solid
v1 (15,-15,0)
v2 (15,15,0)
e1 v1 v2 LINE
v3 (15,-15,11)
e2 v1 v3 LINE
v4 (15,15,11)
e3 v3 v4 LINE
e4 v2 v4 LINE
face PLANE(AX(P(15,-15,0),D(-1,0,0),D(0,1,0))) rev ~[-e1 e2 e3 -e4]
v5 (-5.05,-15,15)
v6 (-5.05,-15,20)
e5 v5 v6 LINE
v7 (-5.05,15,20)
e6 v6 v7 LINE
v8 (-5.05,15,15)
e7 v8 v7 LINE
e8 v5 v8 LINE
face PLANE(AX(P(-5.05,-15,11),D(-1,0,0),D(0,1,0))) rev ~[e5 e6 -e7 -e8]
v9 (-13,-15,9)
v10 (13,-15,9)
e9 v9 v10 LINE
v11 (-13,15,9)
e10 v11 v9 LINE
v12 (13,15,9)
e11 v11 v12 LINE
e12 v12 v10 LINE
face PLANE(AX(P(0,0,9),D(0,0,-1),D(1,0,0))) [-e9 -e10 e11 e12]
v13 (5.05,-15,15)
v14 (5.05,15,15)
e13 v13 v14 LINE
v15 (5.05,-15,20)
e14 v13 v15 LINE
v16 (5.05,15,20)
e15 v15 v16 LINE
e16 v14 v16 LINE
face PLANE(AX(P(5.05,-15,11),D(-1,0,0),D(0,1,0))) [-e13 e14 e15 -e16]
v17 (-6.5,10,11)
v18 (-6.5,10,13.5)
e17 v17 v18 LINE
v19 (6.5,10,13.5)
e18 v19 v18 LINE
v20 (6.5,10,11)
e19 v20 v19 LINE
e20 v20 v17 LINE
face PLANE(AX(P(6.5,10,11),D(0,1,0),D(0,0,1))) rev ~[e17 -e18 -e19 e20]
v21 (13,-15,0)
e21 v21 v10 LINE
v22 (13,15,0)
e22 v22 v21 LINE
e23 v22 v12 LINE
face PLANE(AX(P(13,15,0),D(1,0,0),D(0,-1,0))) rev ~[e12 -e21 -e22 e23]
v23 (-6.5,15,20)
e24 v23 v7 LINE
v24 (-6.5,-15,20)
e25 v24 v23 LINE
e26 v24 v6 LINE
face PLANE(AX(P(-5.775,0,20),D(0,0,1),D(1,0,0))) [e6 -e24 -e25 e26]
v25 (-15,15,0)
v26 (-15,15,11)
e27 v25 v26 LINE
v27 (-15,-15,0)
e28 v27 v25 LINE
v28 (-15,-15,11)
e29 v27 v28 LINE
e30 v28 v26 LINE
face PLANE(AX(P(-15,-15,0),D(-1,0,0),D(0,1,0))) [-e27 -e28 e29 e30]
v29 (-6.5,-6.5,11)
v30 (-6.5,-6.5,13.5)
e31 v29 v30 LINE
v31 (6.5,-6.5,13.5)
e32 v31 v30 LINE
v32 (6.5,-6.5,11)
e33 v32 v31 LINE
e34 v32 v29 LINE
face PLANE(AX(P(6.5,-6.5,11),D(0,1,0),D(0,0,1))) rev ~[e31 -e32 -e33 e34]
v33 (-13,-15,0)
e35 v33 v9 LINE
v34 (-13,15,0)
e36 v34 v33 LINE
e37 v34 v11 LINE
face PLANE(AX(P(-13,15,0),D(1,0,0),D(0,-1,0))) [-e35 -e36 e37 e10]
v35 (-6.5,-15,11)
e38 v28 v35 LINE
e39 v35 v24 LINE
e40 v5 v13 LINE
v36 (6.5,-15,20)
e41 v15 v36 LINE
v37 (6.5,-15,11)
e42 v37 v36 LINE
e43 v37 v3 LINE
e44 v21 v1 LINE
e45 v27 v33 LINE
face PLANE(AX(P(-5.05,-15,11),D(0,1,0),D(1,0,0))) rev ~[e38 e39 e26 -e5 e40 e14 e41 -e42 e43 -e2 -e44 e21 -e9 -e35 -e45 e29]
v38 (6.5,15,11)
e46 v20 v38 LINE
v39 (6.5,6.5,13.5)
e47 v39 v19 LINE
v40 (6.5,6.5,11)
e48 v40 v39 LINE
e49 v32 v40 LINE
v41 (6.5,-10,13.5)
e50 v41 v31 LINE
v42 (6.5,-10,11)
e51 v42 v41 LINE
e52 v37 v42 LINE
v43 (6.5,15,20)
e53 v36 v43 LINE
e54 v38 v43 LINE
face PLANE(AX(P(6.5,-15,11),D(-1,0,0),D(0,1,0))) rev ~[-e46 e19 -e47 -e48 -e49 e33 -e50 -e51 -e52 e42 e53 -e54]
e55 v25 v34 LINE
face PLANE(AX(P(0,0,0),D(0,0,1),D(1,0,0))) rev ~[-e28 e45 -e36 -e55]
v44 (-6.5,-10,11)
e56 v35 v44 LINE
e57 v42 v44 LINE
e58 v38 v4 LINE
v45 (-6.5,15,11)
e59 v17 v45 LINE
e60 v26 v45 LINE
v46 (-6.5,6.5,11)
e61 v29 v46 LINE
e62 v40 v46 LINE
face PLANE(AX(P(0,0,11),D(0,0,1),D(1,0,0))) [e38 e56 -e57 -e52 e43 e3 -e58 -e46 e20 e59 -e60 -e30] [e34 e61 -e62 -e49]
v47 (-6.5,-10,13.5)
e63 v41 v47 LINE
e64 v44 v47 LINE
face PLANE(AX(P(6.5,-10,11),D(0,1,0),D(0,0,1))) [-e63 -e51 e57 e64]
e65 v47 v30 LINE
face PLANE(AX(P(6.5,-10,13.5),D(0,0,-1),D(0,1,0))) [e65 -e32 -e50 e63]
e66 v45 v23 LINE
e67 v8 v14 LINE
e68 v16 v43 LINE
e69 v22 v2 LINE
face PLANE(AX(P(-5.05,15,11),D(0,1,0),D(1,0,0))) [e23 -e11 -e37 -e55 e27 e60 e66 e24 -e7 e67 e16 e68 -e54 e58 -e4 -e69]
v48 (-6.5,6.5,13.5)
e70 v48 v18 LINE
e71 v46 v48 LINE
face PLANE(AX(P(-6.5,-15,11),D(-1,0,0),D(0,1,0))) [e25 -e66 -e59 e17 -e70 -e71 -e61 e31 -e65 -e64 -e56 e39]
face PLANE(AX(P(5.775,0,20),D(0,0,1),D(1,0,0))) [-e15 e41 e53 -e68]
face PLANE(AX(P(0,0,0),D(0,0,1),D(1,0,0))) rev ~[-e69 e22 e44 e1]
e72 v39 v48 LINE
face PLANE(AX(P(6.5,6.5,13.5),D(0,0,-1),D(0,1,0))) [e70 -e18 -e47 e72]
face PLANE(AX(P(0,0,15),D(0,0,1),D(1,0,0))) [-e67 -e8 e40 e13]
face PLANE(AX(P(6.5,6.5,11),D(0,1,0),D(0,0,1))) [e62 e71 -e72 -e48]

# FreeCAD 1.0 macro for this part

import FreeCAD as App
import Part
import Sketcher

doc = App.newDocument("Part")
params = doc.addObject("Spreadsheet::Sheet", "Params")
for row, (alias, value) in enumerate([
    ("sketch1_width", "30 mm"),
    ("pad1_length", "11 mm"),
    ("sketch2_width", "26 mm"),
    ("sketch2_height", "30 mm"),
    ("pocket1_length", "9 mm"),
    ("sketch3_height", "30 mm"),
    ("sketch3_width", "1.45 mm"),
    ("pad2_length", "9 mm"),
    ("sketch4_height", "30 mm"),
    ("sketch4_width", "10.1 mm"),
    ("pad3_length", "4 mm"),
    ("sketch5_width", "3.5 mm"),
    ("sketch5_height", "2.5 mm"),
], start=1):
    params.set(f"A{row}", alias)
    params.set(f"B{row}", "=" + value)
    params.setAlias(f"B{row}", alias)

body = doc.addObject("PartDesign::Body", "Body")

# Sketch on XY plane
sketch1 = body.newObject("Sketcher::SketchObject", "Sketch")
sketch1.AttachmentSupport = (doc.getObject("XY_Plane"), [""])
sketch1.MapMode = "FlatFace"
sketch1.addGeometry(Part.LineSegment(App.Vector(-15, 15, 0), App.Vector(-15, -15, 0)), False)
sketch1.addGeometry(Part.LineSegment(App.Vector(-15, -15, 0), App.Vector(15, -15, 0)), False)
sketch1.addGeometry(Part.LineSegment(App.Vector(15, -15, 0), App.Vector(15, 15, 0)), False)
sketch1.addGeometry(Part.LineSegment(App.Vector(15, 15, 0), App.Vector(-15, 15, 0)), False)
sketch1.addConstraint(Sketcher.Constraint("Coincident", 0, 2, 1, 1))
sketch1.addConstraint(Sketcher.Constraint("Coincident", 1, 2, 2, 1))
sketch1.addConstraint(Sketcher.Constraint("Coincident", 2, 2, 3, 1))
sketch1.addConstraint(Sketcher.Constraint("Coincident", 3, 2, 0, 1))
sketch1.addConstraint(Sketcher.Constraint("Vertical", 0))
sketch1.addConstraint(Sketcher.Constraint("Horizontal", 1))
sketch1.addConstraint(Sketcher.Constraint("Vertical", 2))
sketch1.addConstraint(Sketcher.Constraint("Horizontal", 3))
sketch1.addConstraint(Sketcher.Constraint("Symmetric", 0, 2, 2, 2, -1, 1))
sketch1.addConstraint(Sketcher.Constraint("Equal", 3, 0))
sketch1.addConstraint(Sketcher.Constraint("DistanceX", 1, 1, 1, 2, 30.0))
sketch1.setExpression("Constraints[10]", "Params.sketch1_width")
pad1 = body.newObject("PartDesign::Pad", "Pad")
pad1.Profile = sketch1
pad1.setExpression("Length", "Params.pad1_length")

# Sketch on XY plane
sketch2 = body.newObject("Sketcher::SketchObject", "Sketch001")
sketch2.AttachmentSupport = (doc.getObject("XY_Plane"), [""])
sketch2.MapMode = "FlatFace"
sketch2.addGeometry(Part.LineSegment(App.Vector(-13, -15, 0), App.Vector(-13, 15, 0)), False)
sketch2.addGeometry(Part.LineSegment(App.Vector(-13, 15, 0), App.Vector(13, 15, 0)), False)
sketch2.addGeometry(Part.LineSegment(App.Vector(13, 15, 0), App.Vector(13, -15, 0)), False)
sketch2.addGeometry(Part.LineSegment(App.Vector(13, -15, 0), App.Vector(-13, -15, 0)), False)
sketch2.addConstraint(Sketcher.Constraint("Coincident", 0, 2, 1, 1))
sketch2.addConstraint(Sketcher.Constraint("Coincident", 1, 2, 2, 1))
sketch2.addConstraint(Sketcher.Constraint("Coincident", 2, 2, 3, 1))
sketch2.addConstraint(Sketcher.Constraint("Coincident", 3, 2, 0, 1))
sketch2.addConstraint(Sketcher.Constraint("Vertical", 0))
sketch2.addConstraint(Sketcher.Constraint("Horizontal", 1))
sketch2.addConstraint(Sketcher.Constraint("Vertical", 2))
sketch2.addConstraint(Sketcher.Constraint("Horizontal", 3))
sketch2.addConstraint(Sketcher.Constraint("Symmetric", 0, 2, 2, 2, -1, 1))
sketch2.addConstraint(Sketcher.Constraint("DistanceX", 1, 1, 1, 2, 26.0))
sketch2.addConstraint(Sketcher.Constraint("DistanceY", 0, 1, 0, 2, 30.0))
sketch2.setExpression("Constraints[9]", "Params.sketch2_width")
sketch2.setExpression("Constraints[10]", "Params.sketch2_height")
pocket1 = body.newObject("PartDesign::Pocket", "Pocket")
pocket1.Profile = sketch2
pocket1.setExpression("Length", "Params.pocket1_length")
pocket1.Reversed = True

# Sketch on XY plane
sketch3 = body.newObject("Sketcher::SketchObject", "Sketch002")
sketch3.AttachmentSupport = (doc.getObject("XY_Plane"), [""])
sketch3.MapMode = "FlatFace"
sketch3.AttachmentOffset = App.Placement(App.Vector(0, 0, 11), App.Rotation())
sketch3.addGeometry(Part.LineSegment(App.Vector(-6.5, 15, 0), App.Vector(-6.5, -15, 0)), False)
sketch3.addGeometry(Part.LineSegment(App.Vector(-6.5, -15, 0), App.Vector(-5, -15, 0)), False)
sketch3.addGeometry(Part.LineSegment(App.Vector(-5, -15, 0), App.Vector(-5, 15, 0)), False)
sketch3.addGeometry(Part.LineSegment(App.Vector(-5, 15, 0), App.Vector(-6.5, 15, 0)), False)
sketch3.addGeometry(Part.LineSegment(App.Vector(5, 15, 0), App.Vector(5, -15, 0)), False)
sketch3.addGeometry(Part.LineSegment(App.Vector(5, -15, 0), App.Vector(6.5, -15, 0)), False)
sketch3.addGeometry(Part.LineSegment(App.Vector(6.5, -15, 0), App.Vector(6.5, 15, 0)), False)
sketch3.addGeometry(Part.LineSegment(App.Vector(6.5, 15, 0), App.Vector(5, 15, 0)), False)
sketch3.addConstraint(Sketcher.Constraint("Coincident", 0, 2, 1, 1))
sketch3.addConstraint(Sketcher.Constraint("Coincident", 1, 2, 2, 1))
sketch3.addConstraint(Sketcher.Constraint("Coincident", 2, 2, 3, 1))
sketch3.addConstraint(Sketcher.Constraint("Coincident", 3, 2, 0, 1))
sketch3.addConstraint(Sketcher.Constraint("Coincident", 4, 2, 5, 1))
sketch3.addConstraint(Sketcher.Constraint("Coincident", 5, 2, 6, 1))
sketch3.addConstraint(Sketcher.Constraint("Coincident", 6, 2, 7, 1))
sketch3.addConstraint(Sketcher.Constraint("Coincident", 7, 2, 4, 1))
sketch3.addConstraint(Sketcher.Constraint("Vertical", 0))
sketch3.addConstraint(Sketcher.Constraint("Horizontal", 1))
sketch3.addConstraint(Sketcher.Constraint("Vertical", 2))
sketch3.addConstraint(Sketcher.Constraint("Horizontal", 3))
sketch3.addConstraint(Sketcher.Constraint("Vertical", 4))
sketch3.addConstraint(Sketcher.Constraint("Horizontal", 5))
sketch3.addConstraint(Sketcher.Constraint("Vertical", 6))
sketch3.addConstraint(Sketcher.Constraint("Horizontal", 7))
sketch3.addConstraint(Sketcher.Constraint("Symmetric", 2, 2, 4, 2, -1, 1))
sketch3.addConstraint(Sketcher.Constraint("Symmetric", 0, 2, 6, 2, -1, 1))
sketch3.addConstraint(Sketcher.Constraint("Horizontal", 1, 2, 4, 2))
sketch3.addConstraint(Sketcher.Constraint("DistanceY", 0, 2, 0, 1, 30.0))
sketch3.addConstraint(Sketcher.Constraint("DistanceX", 0, 2, 5, 2, 13.0))
sketch3.addConstraint(Sketcher.Constraint("DistanceX", 1, 1, 1, 2, 1.45))
sketch3.setExpression("Constraints[19]", "Params.sketch3_height")
sketch3.setExpression("Constraints[21]", "Params.sketch3_width")
pad2 = body.newObject("PartDesign::Pad", "Pad001")
pad2.Profile = sketch3
pad2.setExpression("Length", "Params.pad2_length")

# Sketch on XY plane
sketch4 = body.newObject("Sketcher::SketchObject", "Sketch003")
sketch4.AttachmentSupport = (doc.getObject("XY_Plane"), [""])
sketch4.MapMode = "FlatFace"
sketch4.AttachmentOffset = App.Placement(App.Vector(0, 0, 11), App.Rotation())
sketch4.addGeometry(Part.LineSegment(App.Vector(-5, 15, 0), App.Vector(-5, -15, 0)), False)
sketch4.addGeometry(Part.LineSegment(App.Vector(-5, -15, 0), App.Vector(5, -15, 0)), False)
sketch4.addGeometry(Part.LineSegment(App.Vector(5, -15, 0), App.Vector(5, 15, 0)), False)
sketch4.addGeometry(Part.LineSegment(App.Vector(5, 15, 0), App.Vector(-5, 15, 0)), False)
sketch4.addConstraint(Sketcher.Constraint("Coincident", 0, 2, 1, 1))
sketch4.addConstraint(Sketcher.Constraint("Coincident", 1, 2, 2, 1))
sketch4.addConstraint(Sketcher.Constraint("Coincident", 2, 2, 3, 1))
sketch4.addConstraint(Sketcher.Constraint("Coincident", 3, 2, 0, 1))
sketch4.addConstraint(Sketcher.Constraint("Vertical", 0))
sketch4.addConstraint(Sketcher.Constraint("Horizontal", 1))
sketch4.addConstraint(Sketcher.Constraint("Vertical", 2))
sketch4.addConstraint(Sketcher.Constraint("Horizontal", 3))
sketch4.addConstraint(Sketcher.Constraint("Symmetric", 0, 2, 2, 2, -1, 1))
sketch4.addConstraint(Sketcher.Constraint("DistanceY", 0, 2, 0, 1, 30.0))
sketch4.addConstraint(Sketcher.Constraint("DistanceX", 1, 1, 1, 2, 10.1))
sketch4.setExpression("Constraints[9]", "Params.sketch4_height")
sketch4.setExpression("Constraints[10]", "Params.sketch4_width")
pad3 = body.newObject("PartDesign::Pad", "Pad002")
pad3.Profile = sketch4
pad3.setExpression("Length", "Params.pad3_length")

# Sketch on YZ plane
sketch5 = body.newObject("Sketcher::SketchObject", "Sketch004")
sketch5.AttachmentSupport = (doc.getObject("YZ_Plane"), [""])
sketch5.MapMode = "FlatFace"
sketch5.AttachmentOffset = App.Placement(App.Vector(0, 0, 6.5), App.Rotation())
sketch5.addGeometry(Part.LineSegment(App.Vector(-10, 13.5, 0), App.Vector(-10, 11, 0)), False)
sketch5.addGeometry(Part.LineSegment(App.Vector(-10, 11, 0), App.Vector(-6.5, 11, 0)), False)
sketch5.addGeometry(Part.LineSegment(App.Vector(-6.5, 11, 0), App.Vector(-6.5, 13.5, 0)), False)
sketch5.addGeometry(Part.LineSegment(App.Vector(-6.5, 13.5, 0), App.Vector(-10, 13.5, 0)), False)
sketch5.addGeometry(Part.LineSegment(App.Vector(6.5, 13.5, 0), App.Vector(6.5, 11, 0)), False)
sketch5.addGeometry(Part.LineSegment(App.Vector(6.5, 11, 0), App.Vector(10, 11, 0)), False)
sketch5.addGeometry(Part.LineSegment(App.Vector(10, 11, 0), App.Vector(10, 13.5, 0)), False)
sketch5.addGeometry(Part.LineSegment(App.Vector(10, 13.5, 0), App.Vector(6.5, 13.5, 0)), False)
sketch5.addConstraint(Sketcher.Constraint("Coincident", 0, 2, 1, 1))
sketch5.addConstraint(Sketcher.Constraint("Coincident", 1, 2, 2, 1))
sketch5.addConstraint(Sketcher.Constraint("Coincident", 2, 2, 3, 1))
sketch5.addConstraint(Sketcher.Constraint("Coincident", 3, 2, 0, 1))
sketch5.addConstraint(Sketcher.Constraint("Coincident", 4, 2, 5, 1))
sketch5.addConstraint(Sketcher.Constraint("Coincident", 5, 2, 6, 1))
sketch5.addConstraint(Sketcher.Constraint("Coincident", 6, 2, 7, 1))
sketch5.addConstraint(Sketcher.Constraint("Coincident", 7, 2, 4, 1))
sketch5.addConstraint(Sketcher.Constraint("Vertical", 0))
sketch5.addConstraint(Sketcher.Constraint("Horizontal", 1))
sketch5.addConstraint(Sketcher.Constraint("Vertical", 2))
sketch5.addConstraint(Sketcher.Constraint("Horizontal", 3))
sketch5.addConstraint(Sketcher.Constraint("Vertical", 4))
sketch5.addConstraint(Sketcher.Constraint("Horizontal", 5))
sketch5.addConstraint(Sketcher.Constraint("Vertical", 6))
sketch5.addConstraint(Sketcher.Constraint("Horizontal", 7))
sketch5.addConstraint(Sketcher.Constraint("Symmetric", 1, 2, 4, 2, -2))
sketch5.addConstraint(Sketcher.Constraint("Symmetric", 3, 2, 6, 2, -2))
sketch5.addConstraint(Sketcher.Constraint("DistanceX", 1, 1, 1, 2, 3.5))
sketch5.addConstraint(Sketcher.Constraint("DistanceY", 0, 2, 0, 1, 2.5))
sketch5.addConstraint(Sketcher.Constraint("DistanceX", 0, 2, -1, 1, 10.0))
sketch5.addConstraint(Sketcher.Constraint("DistanceY", -1, 1, 0, 2, 11.0))
sketch5.setExpression("Constraints[18]", "Params.sketch5_width")
sketch5.setExpression("Constraints[19]", "Params.sketch5_height")
pocket2 = body.newObject("PartDesign::Pocket", "Pocket001")
pocket2.Profile = sketch5
pocket2.Type = "ThroughAll"

doc.recompute()
